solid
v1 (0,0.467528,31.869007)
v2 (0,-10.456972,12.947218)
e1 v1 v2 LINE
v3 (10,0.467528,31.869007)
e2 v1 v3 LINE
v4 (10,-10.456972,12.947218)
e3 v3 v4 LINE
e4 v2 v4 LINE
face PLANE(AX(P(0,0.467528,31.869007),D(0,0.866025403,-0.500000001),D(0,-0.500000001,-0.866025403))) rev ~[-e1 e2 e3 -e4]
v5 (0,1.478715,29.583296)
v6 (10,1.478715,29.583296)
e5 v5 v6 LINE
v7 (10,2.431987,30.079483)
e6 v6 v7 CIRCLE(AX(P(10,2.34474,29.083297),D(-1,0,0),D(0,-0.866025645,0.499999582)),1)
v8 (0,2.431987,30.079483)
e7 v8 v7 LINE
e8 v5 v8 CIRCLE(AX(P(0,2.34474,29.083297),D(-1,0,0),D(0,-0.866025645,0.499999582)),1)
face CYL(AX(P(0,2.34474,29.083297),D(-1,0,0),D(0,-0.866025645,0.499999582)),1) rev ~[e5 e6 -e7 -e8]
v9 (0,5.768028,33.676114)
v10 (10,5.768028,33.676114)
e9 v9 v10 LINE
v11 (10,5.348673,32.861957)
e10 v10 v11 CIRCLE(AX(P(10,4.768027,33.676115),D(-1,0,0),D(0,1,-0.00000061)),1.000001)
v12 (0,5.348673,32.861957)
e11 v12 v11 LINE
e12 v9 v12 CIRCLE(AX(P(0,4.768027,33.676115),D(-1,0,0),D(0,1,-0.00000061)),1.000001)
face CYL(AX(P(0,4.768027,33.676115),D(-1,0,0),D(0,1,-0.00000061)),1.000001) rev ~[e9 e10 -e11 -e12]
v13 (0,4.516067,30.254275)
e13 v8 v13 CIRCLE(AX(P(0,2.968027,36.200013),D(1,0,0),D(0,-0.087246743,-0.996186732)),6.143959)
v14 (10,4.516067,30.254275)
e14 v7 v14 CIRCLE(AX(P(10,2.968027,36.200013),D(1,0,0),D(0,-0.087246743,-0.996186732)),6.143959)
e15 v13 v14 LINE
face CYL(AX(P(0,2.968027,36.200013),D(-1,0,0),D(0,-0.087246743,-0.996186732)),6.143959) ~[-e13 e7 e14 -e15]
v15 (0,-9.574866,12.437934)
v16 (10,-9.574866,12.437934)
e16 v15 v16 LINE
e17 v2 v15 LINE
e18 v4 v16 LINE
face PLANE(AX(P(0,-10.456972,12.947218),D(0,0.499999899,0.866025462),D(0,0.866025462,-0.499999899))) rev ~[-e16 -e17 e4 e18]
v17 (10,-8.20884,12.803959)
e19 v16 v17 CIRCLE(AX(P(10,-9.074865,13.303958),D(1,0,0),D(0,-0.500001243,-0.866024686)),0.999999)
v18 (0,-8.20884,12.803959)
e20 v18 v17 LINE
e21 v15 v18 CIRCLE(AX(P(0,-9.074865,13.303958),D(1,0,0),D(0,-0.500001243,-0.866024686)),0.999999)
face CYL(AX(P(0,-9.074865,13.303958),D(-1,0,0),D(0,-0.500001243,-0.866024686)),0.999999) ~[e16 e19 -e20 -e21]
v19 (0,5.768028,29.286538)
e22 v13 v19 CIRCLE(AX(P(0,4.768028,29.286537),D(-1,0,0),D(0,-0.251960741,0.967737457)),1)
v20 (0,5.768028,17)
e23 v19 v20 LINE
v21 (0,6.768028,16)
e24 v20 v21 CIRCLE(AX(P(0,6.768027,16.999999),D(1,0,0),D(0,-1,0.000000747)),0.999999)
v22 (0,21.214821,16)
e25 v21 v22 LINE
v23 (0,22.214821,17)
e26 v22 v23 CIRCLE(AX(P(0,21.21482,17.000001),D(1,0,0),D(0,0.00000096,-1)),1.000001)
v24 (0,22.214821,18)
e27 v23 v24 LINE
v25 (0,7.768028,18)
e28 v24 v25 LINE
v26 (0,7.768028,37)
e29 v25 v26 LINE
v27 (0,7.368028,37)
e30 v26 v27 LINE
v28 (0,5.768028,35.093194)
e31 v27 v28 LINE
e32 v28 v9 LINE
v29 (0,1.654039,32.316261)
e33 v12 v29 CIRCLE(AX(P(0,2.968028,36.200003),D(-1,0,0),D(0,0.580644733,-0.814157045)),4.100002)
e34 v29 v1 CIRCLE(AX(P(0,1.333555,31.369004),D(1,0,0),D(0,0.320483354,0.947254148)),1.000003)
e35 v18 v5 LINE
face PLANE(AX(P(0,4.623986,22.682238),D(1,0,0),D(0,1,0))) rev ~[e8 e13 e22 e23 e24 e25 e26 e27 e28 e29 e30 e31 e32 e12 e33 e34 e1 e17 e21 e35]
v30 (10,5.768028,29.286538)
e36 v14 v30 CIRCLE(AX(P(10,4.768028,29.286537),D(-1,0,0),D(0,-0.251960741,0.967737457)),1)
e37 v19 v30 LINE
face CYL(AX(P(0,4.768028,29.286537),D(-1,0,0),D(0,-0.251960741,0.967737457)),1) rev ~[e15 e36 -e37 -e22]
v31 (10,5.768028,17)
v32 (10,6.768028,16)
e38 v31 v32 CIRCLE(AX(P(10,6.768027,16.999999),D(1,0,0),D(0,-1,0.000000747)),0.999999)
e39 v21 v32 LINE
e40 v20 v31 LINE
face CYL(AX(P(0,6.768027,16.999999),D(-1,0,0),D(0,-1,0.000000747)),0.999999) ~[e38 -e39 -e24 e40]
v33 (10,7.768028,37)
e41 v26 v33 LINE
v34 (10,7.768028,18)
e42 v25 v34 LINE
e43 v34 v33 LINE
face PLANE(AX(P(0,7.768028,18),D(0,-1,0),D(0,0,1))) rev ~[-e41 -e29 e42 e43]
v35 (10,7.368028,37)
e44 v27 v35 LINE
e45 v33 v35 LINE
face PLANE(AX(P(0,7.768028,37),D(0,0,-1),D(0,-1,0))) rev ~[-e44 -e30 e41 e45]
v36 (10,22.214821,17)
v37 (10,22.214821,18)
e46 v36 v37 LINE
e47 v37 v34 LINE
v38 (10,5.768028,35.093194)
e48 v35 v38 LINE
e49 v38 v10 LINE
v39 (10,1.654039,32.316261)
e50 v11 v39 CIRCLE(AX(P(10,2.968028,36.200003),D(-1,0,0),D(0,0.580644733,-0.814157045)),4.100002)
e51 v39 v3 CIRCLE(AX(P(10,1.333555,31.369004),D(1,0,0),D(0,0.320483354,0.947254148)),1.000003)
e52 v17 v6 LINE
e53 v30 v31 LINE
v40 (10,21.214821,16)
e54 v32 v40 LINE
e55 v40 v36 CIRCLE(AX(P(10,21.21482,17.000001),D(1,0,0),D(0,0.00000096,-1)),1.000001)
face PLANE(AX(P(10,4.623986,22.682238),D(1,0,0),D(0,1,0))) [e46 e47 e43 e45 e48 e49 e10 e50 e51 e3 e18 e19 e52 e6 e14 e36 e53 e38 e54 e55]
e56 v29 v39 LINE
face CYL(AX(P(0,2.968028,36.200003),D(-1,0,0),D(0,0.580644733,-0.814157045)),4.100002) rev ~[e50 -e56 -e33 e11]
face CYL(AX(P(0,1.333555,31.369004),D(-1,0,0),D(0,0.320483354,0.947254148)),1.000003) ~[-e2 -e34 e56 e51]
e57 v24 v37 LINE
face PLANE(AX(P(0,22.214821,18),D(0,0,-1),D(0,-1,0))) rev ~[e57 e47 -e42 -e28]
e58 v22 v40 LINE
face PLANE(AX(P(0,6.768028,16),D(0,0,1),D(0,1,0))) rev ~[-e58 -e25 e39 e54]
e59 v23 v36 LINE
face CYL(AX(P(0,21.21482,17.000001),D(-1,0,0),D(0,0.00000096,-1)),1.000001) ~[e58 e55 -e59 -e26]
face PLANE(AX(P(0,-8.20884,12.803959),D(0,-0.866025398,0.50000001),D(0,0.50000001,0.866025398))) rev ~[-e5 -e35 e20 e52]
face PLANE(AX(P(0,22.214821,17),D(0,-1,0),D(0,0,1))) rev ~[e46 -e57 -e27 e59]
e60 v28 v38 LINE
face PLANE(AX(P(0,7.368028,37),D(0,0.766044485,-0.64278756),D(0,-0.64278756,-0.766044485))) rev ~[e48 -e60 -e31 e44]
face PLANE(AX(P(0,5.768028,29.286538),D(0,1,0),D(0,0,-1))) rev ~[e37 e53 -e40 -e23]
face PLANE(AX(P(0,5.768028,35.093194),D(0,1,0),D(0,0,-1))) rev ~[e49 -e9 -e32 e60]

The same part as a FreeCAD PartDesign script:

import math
import FreeCAD as App
import Part
import Sketcher

V = App.Vector
Q = App.Units.Quantity

doc = App.newDocument("Part")
body = doc.addObject("PartDesign::Body", "Body")

# Sketch on YZ plane
sketch1 = body.newObject("Sketcher::SketchObject", "Sketch")
sketch1.AttachmentSupport = (doc.getObject("YZ_Plane"), [""])
sketch1.MapMode = "FlatFace"
sketch1.addGeometry([
    Part.LineSegment(V(7.77, 18, 0), V(7.77, 37, 0)),  # 0
    Part.LineSegment(V(7.77, 37, 0), V(7.37, 37, 0)),  # 1
    Part.LineSegment(V(7.37, 37, 0), V(5.77, 35.09, 0)),  # 2
    Part.LineSegment(V(5.77, 35.09, 0), V(5.77, 33.68, 0)),  # 3
    Part.ArcOfCircle(Part.Circle(V(4.77, 33.68, 0), V(0, 0, 1), 1), math.radians(-55), math.radians(0)),  # 4
    Part.ArcOfCircle(Part.Circle(V(2.97, 36.2, 0), V(0, 0, 1), 4.1), math.radians(-109), math.radians(-55)),  # 5
    Part.ArcOfCircle(Part.Circle(V(1.33, 31.37, 0), V(0, 0, 1), 1), math.radians(71), math.radians(150)),  # 6
    Part.LineSegment(V(0.47, 31.87, 0), V(-10.46, 12.95, 0)),  # 7
    Part.LineSegment(V(-10.46, 12.95, 0), V(-9.57, 12.44, 0)),  # 8
    Part.ArcOfCircle(Part.Circle(V(-9.07, 13.3, 0), V(0, 0, 1), 1), math.radians(-120), math.radians(-30)),  # 9
    Part.LineSegment(V(-8.21, 12.8, 0), V(1.48, 29.58, 0)),  # 10
    Part.ArcOfCircle(Part.Circle(V(2.34, 29.08, 0), V(0, 0, 1), 1), math.radians(85), math.radians(150)),  # 11
    Part.ArcOfCircle(Part.Circle(V(2.97, 36.2, 0), V(0, 0, 1), 6.14), math.radians(-95.01), math.radians(-75.41)),  # 12
    Part.ArcOfCircle(Part.Circle(V(4.77, 29.29, 0), V(0, 0, 1), 1), math.radians(0), math.radians(105)),  # 13
    Part.LineSegment(V(5.77, 29.29, 0), V(5.77, 17, 0)),  # 14
    Part.ArcOfCircle(Part.Circle(V(6.77, 17, 0), V(0, 0, 1), 1), math.radians(180), math.radians(270)),  # 15
    Part.LineSegment(V(6.77, 16, 0), V(21.21, 16, 0)),  # 16
    Part.ArcOfCircle(Part.Circle(V(21.21, 17, 0), V(0, 0, 1), 1), math.radians(-90), math.radians(0)),  # 17
    Part.LineSegment(V(22.21, 17, 0), V(22.21, 18, 0)),  # 18
    Part.LineSegment(V(22.21, 18, 0), V(7.77, 18, 0)),  # 19
], False)
sketch1.addConstraint([
    Sketcher.Constraint("Coincident", 0, 2, 1, 1),
    Sketcher.Constraint("Coincident", 1, 2, 2, 1),
    Sketcher.Constraint("Coincident", 2, 2, 3, 1),
    Sketcher.Constraint("Tangent", 3, 2, 4, 2),
    Sketcher.Constraint("Tangent", 4, 1, 5, 2),
    Sketcher.Constraint("Tangent", 5, 1, 6, 1),
    Sketcher.Constraint("Tangent", 6, 2, 7, 1),
    Sketcher.Constraint("Coincident", 7, 2, 8, 1),
    Sketcher.Constraint("Tangent", 8, 2, 9, 1),
    Sketcher.Constraint("Tangent", 9, 2, 10, 1),
    Sketcher.Constraint("Tangent", 10, 2, 11, 2),
    Sketcher.Constraint("Tangent", 11, 1, 12, 1),
    Sketcher.Constraint("Tangent", 12, 2, 13, 2),
    Sketcher.Constraint("Tangent", 13, 1, 14, 1),
    Sketcher.Constraint("Tangent", 14, 2, 15, 1),
    Sketcher.Constraint("Tangent", 15, 2, 16, 1),
    Sketcher.Constraint("Tangent", 16, 2, 17, 1),
    Sketcher.Constraint("Tangent", 17, 2, 18, 1),
    Sketcher.Constraint("Coincident", 18, 2, 19, 1),
    Sketcher.Constraint("Coincident", 19, 2, 0, 1),
    Sketcher.Constraint("Vertical", 0),
    Sketcher.Constraint("Horizontal", 1),
    Sketcher.Constraint("Vertical", 3),
    Sketcher.Constraint("Vertical", 14),
    Sketcher.Constraint("Horizontal", 16),
    Sketcher.Constraint("Vertical", 18),
    Sketcher.Constraint("Horizontal", 19),
    Sketcher.Constraint("Equal", 4, 6),
    Sketcher.Constraint("Equal", 9, 11),
    Sketcher.Constraint("Equal", 11, 13),
    Sketcher.Constraint("Equal", 13, 15),
    Sketcher.Constraint("Equal", 15, 17),
    Sketcher.Constraint("Perpendicular", 7, 8),
    Sketcher.Constraint("Perpendicular", 8, 10),
    Sketcher.Constraint("Vertical", 5, 3, 12, 3),
    Sketcher.Constraint("Vertical", 4, 3, 13, 3),
    Sketcher.Constraint("Vertical", 3, 2, 13, 1),
    Sketcher.Constraint("Equal", 16, 19),
    Sketcher.Constraint("Radius", 4, Q("1.000001 mm")),
    Sketcher.Constraint("Radius", 5, Q("4.100002 mm")),
    Sketcher.Constraint("DistanceY", 0, 1, 0, 2, Q("19 mm")),
    Sketcher.Constraint("DistanceY", 18, 1, 18, 2, Q("1 mm")),
    Sketcher.Constraint("Angle", 2, Q("-129.999996 deg")),
    Sketcher.Constraint("Angle", 7, Q("-120 deg")),
    Sketcher.Constraint("DistanceX", 1, 2, 1, 1, Q("0.4 mm")),
    Sketcher.Constraint("DistanceY", -1, 1, 15, 3, Q("16.999999 mm")),
    Sketcher.Constraint("DistanceX", 5, 3, 4, 3, Q("1.799998 mm")),
    Sketcher.Constraint("Radius", 12, Q("6.143959 mm")),
    Sketcher.Constraint("Distance", 7, Q("21.849 mm")),
    Sketcher.Constraint("DistanceY", 6, 3, 5, 3, Q("4.830998 mm")),
    Sketcher.Constraint("DistanceY", 3, 2, 3, 1, Q("1.41708 mm")),
    Sketcher.Constraint("DistanceY", 4, 3, 12, 3, Q("2.523899 mm")),
    Sketcher.Constraint("DistanceX", 5, 1, 11, 3, Q("0.690701 mm")),
    Sketcher.Constraint("DistanceX", 16, 1, 16, 2, Q("14.446793 mm")),
    Sketcher.Constraint("DistanceX", -1, 1, 5, 3, Q("2.968028 mm")),
])
pad1 = body.newObject("PartDesign::Pad", "Pad")
pad1.Profile = sketch1
pad1.Length = 10

doc.recompute()
